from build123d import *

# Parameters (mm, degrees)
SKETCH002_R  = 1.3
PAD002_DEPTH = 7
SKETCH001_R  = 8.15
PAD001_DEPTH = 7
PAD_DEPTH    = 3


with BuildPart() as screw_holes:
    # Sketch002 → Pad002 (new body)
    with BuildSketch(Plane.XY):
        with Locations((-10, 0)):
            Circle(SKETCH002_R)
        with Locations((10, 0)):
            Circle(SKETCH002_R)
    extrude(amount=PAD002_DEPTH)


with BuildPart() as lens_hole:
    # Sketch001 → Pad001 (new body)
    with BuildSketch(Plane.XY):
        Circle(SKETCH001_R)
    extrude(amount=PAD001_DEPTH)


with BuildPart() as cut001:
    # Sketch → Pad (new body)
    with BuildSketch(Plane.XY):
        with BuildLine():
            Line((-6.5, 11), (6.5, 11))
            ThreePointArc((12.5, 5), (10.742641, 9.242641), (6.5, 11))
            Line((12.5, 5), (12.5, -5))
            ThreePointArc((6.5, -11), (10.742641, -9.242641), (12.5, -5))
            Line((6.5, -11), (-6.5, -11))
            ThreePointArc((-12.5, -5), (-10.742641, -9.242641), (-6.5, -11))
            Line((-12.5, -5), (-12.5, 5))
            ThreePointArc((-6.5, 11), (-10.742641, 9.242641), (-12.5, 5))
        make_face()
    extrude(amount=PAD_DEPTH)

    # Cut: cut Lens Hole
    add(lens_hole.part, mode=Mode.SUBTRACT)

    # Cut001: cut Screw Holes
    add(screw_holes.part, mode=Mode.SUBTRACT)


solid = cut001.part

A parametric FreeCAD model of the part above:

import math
import FreeCAD as App
import Part
import Sketcher

doc = App.newDocument("Part")
params = doc.addObject("Spreadsheet::Sheet", "Params")
for row, (alias, value) in enumerate([
    ("sketch1_diameter", "2.6 mm"),
    ("pad1_length", "7 mm"),
    ("sketch2_diameter", "16.3 mm"),
    ("pad2_length", "7 mm"),
    ("sketch3_radius", "5.999999 mm"),
    ("sketch3_width", "13 mm"),
    ("sketch3_height", "10 mm"),
    ("pad3_length", "3 mm"),
], start=1):
    params.set(f"A{row}", alias)
    params.set(f"B{row}", "=" + value)
    params.setAlias(f"B{row}", alias)

body = doc.addObject("PartDesign::Body", "Body")
body.AllowCompound = True

# Sketch on XY plane
sketch1 = body.newObject("Sketcher::SketchObject", "Sketch")
sketch1.AttachmentSupport = (doc.getObject("XY_Plane"), [""])
sketch1.MapMode = "FlatFace"
sketch1.addGeometry([
    Part.Circle(App.Vector(-10, 0, 0), App.Vector(0, 0, 1), 1.3),
    Part.Circle(App.Vector(10, 0, 0), App.Vector(0, 0, 1), 1.3),
], False)
sketch1.addConstraint([
    Sketcher.Constraint("Equal", 0, 1),
    Sketcher.Constraint("Symmetric", 0, 3, 1, 3, -1, 1),
    Sketcher.Constraint("PointOnObject", 0, 3, -1),
    Sketcher.Constraint("Diameter", 0, 2.6),
    Sketcher.Constraint("DistanceX", 0, 3, -1, 1, 10.0),
])
sketch1.setExpression("Constraints[3]", "Params.sketch1_diameter")
pad1 = body.newObject("PartDesign::Pad", "Pad")
pad1.Profile = sketch1
pad1.setExpression("Length", "Params.pad1_length")
body2 = doc.addObject("PartDesign::Body", "Body001")

# Sketch on XY plane
sketch2 = body2.newObject("Sketcher::SketchObject", "Sketch001")
sketch2.AttachmentSupport = (doc.getObject("XY_Plane001"), [""])
sketch2.MapMode = "FlatFace"
sketch2.addGeometry(Part.Circle(App.Vector(0, 0, 0), App.Vector(0, 0, 1), 8), False)
sketch2.addConstraint([
    Sketcher.Constraint("Coincident", 0, 3, -1, 1),
    Sketcher.Constraint("Diameter", 0, 16.3),
])
sketch2.setExpression("Constraints[1]", "Params.sketch2_diameter")
pad2 = body2.newObject("PartDesign::Pad", "Pad001")
pad2.Profile = sketch2
pad2.setExpression("Length", "Params.pad2_length")
body3 = doc.addObject("PartDesign::Body", "Body002")

# Sketch on XY plane
sketch3 = body3.newObject("Sketcher::SketchObject", "Sketch002")
sketch3.AttachmentSupport = (doc.getObject("XY_Plane002"), [""])
sketch3.MapMode = "FlatFace"
sketch3.addGeometry([
    Part.LineSegment(App.Vector(6, 11, 0), App.Vector(-6, 11, 0)),  # 0
    Part.ArcOfCircle(Part.Circle(App.Vector(-7, 5, 0), App.Vector(0, 0, 1), 6), math.radians(90), math.radians(180)),  # 1
    Part.LineSegment(App.Vector(-12, 5, 0), App.Vector(-12, -5, 0)),  # 2
    Part.ArcOfCircle(Part.Circle(App.Vector(-7, -5, 0), App.Vector(0, 0, 1), 6), math.radians(180), math.radians(270)),  # 3
    Part.LineSegment(App.Vector(-6, -11, 0), App.Vector(6, -11, 0)),  # 4
    Part.ArcOfCircle(Part.Circle(App.Vector(7, -5, 0), App.Vector(0, 0, 1), 6), math.radians(-90), math.radians(0)),  # 5
    Part.LineSegment(App.Vector(12, -5, 0), App.Vector(12, 5, 0)),  # 6
    Part.ArcOfCircle(Part.Circle(App.Vector(7, 5, 0), App.Vector(0, 0, 1), 6), math.radians(0), math.radians(90)),  # 7
], False)
sketch3.addConstraint([
    Sketcher.Constraint("Tangent", 0, 2, 1, 1),
    Sketcher.Constraint("Tangent", 1, 2, 2, 1),
    Sketcher.Constraint("Tangent", 2, 2, 3, 1),
    Sketcher.Constraint("Tangent", 3, 2, 4, 1),
    Sketcher.Constraint("Tangent", 4, 2, 5, 1),
    Sketcher.Constraint("Tangent", 5, 2, 6, 1),
    Sketcher.Constraint("Tangent", 6, 2, 7, 1),
    Sketcher.Constraint("Tangent", 7, 2, 0, 1),
    Sketcher.Constraint("Horizontal", 0),
    Sketcher.Constraint("Vertical", 2),
    Sketcher.Constraint("Horizontal", 4),
    Sketcher.Constraint("Vertical", 6),
    Sketcher.Constraint("Equal", 1, 3),
    Sketcher.Constraint("Equal", 3, 5),
    Sketcher.Constraint("Equal", 5, 7),
    Sketcher.Constraint("Symmetric", 1, 3, 5, 3, -1, 1),
    Sketcher.Constraint("Radius", 1, 5.999999),
    Sketcher.Constraint("DistanceX", 0, 2, 0, 1, 13.0),
    Sketcher.Constraint("DistanceY", 2, 2, 2, 1, 10.0),
])
sketch3.setExpression("Constraints[16]", "Params.sketch3_radius")
sketch3.setExpression("Constraints[17]", "Params.sketch3_width")
sketch3.setExpression("Constraints[18]", "Params.sketch3_height")
pad3 = body3.newObject("PartDesign::Pad", "Pad002")
pad3.Profile = sketch3
pad3.setExpression("Length", "Params.pad3_length")
doc.recompute()

boolean = body3.newObject("PartDesign::Boolean", "Boolean")
boolean.Type = "Cut"
boolean.addObjects([body2])
doc.recompute()

boolean2 = body3.newObject("PartDesign::Boolean", "Boolean001")
boolean2.Type = "Cut"
boolean2.addObjects([body])

doc.recompute()
